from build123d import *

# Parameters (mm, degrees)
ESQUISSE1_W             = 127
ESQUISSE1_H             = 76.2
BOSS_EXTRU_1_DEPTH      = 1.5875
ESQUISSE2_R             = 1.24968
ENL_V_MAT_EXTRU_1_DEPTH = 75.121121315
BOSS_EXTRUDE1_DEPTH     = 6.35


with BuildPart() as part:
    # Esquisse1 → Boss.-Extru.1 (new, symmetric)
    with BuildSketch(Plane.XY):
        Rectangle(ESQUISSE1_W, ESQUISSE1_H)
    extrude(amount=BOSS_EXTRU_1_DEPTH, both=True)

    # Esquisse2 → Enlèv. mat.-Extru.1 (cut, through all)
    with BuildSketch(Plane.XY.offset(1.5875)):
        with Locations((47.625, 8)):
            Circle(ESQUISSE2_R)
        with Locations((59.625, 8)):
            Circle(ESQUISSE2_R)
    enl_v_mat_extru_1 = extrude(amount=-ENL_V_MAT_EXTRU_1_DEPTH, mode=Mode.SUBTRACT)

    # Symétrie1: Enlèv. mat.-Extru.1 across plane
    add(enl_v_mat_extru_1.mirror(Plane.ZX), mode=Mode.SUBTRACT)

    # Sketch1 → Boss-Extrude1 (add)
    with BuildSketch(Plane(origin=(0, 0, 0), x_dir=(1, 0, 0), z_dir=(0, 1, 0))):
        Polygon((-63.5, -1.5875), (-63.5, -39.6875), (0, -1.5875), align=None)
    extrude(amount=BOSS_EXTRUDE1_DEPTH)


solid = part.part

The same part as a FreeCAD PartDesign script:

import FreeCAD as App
import Part
import Sketcher
Q = App.Units.Quantity

doc = App.newDocument("Part")
body = doc.addObject("PartDesign::Body", "Body")

# Sketch on XY plane
sketch1 = doc.addObject("Sketcher::SketchObject", "Sketch")
body.addObject(sketch1)
sketch1.AttachmentSupport = (doc.XY_Plane, [""])
sketch1.MapMode = "FlatFace"
sketch1.addGeometry([
    Part.LineSegment(App.Vector(-63.5, 38.1, 0), App.Vector(-63.5, -38.1, 0)),
    Part.LineSegment(App.Vector(-63.5, -38.1, 0), App.Vector(63.5, -38.1, 0)),
    Part.LineSegment(App.Vector(63.5, -38.1, 0), App.Vector(63.5, 38.1, 0)),
    Part.LineSegment(App.Vector(63.5, 38.1, 0), App.Vector(-63.5, 38.1, 0)),
], False)
sketch1.addConstraint([
    Sketcher.Constraint("Coincident", 0, 2, 1, 1),
    Sketcher.Constraint("Coincident", 1, 2, 2, 1),
    Sketcher.Constraint("Coincident", 2, 2, 3, 1),
    Sketcher.Constraint("Coincident", 3, 2, 0, 1),
    Sketcher.Constraint("Vertical", 0),
    Sketcher.Constraint("Horizontal", 1),
    Sketcher.Constraint("Vertical", 2),
    Sketcher.Constraint("Horizontal", 3),
    Sketcher.Constraint("Symmetric", 0, 2, 2, 2, -1, 1),
    Sketcher.Constraint("DistanceX", 1, 1, 1, 2, Q("5 in")),
    Sketcher.Constraint("DistanceY", 0, 2, 0, 1, Q("3 in")),
])
pad1 = doc.addObject("PartDesign::Pad", "Pad")
body.addObject(pad1)
pad1.Profile = sketch1
pad1.Length = Q("0.125 in")
pad1.Midplane = True

# Sketch on XY plane
sketch2 = doc.addObject("Sketcher::SketchObject", "Sketch001")
body.addObject(sketch2)
sketch2.AttachmentSupport = (doc.XY_Plane, [""])
sketch2.MapMode = "FlatFace"
sketch2.AttachmentOffset = App.Placement(App.Vector(0, 0, 0.0625 * 25.4), App.Rotation())
sketch2.addGeometry([
    Part.Circle(App.Vector(47.625, 8, 0), App.Vector(0, 0, 1), 1.24968),
    Part.Circle(App.Vector(59.625, 8, 0), App.Vector(0, 0, 1), 1.24968),
], False)
sketch2.addConstraint([
    Sketcher.Constraint("Equal", 0, 1),
    Sketcher.Constraint("Horizontal", 0, 3, 1, 3),
    Sketcher.Constraint("Diameter", 0, Q("0.0984 in")),
    Sketcher.Constraint("DistanceX", -1, 1, 0, 3, Q("1.875 in")),
    Sketcher.Constraint("DistanceY", -1, 1, 0, 3, Q("8 mm")),
    Sketcher.Constraint("DistanceX", -1, 1, 1, 3, Q("59.625 mm")),
])
pocket1 = doc.addObject("PartDesign::Pocket", "Pocket")
body.addObject(pocket1)
pocket1.Profile = sketch2
pocket1.Type = "ThroughAll"
doc.recompute()

mirrored = doc.addObject("PartDesign::Mirrored", "Mirrored")
body.addObject(mirrored)
mirrored.Originals = [pocket1]
mirrored.MirrorPlane = (doc.XZ_Plane, [""])
body.Tip = mirrored

# Sketch on XZ plane
sketch3 = doc.addObject("Sketcher::SketchObject", "Sketch002")
body.addObject(sketch3)
sketch3.AttachmentSupport = (doc.XZ_Plane, [""])
sketch3.MapMode = "FlatFace"
sketch3.addGeometry([
    Part.LineSegment(App.Vector(-63.5, 1.5875, 0), App.Vector(-63.5, 39.6875, 0)),
    Part.LineSegment(App.Vector(-63.5, 39.6875, 0), App.Vector(0, 1.5875, 0)),
    Part.LineSegment(App.Vector(0, 1.5875, 0), App.Vector(-63.5, 1.5875, 0)),
], False)
sketch3.addConstraint([
    Sketcher.Constraint("Coincident", 0, 2, 1, 1),
    Sketcher.Constraint("Coincident", 1, 2, 2, 1),
    Sketcher.Constraint("Coincident", 2, 2, 0, 1),
    Sketcher.Constraint("Vertical", 0),
    Sketcher.Constraint("Horizontal", 2),
    Sketcher.Constraint("PointOnObject", 1, 2, -2),
    Sketcher.Constraint("DistanceX", 2, 2, 2, 1, Q("2.5 in")),
    Sketcher.Constraint("DistanceY", 0, 1, 0, 2, Q("1.5 in")),
    Sketcher.Constraint("DistanceY", -1, 1, 0, 2, Q("1.5625 in")),
])
pad2 = doc.addObject("PartDesign::Pad", "Pad001")
body.addObject(pad2)
pad2.Profile = sketch3
pad2.Length = Q("0.25 in")
pad2.Reversed = True

doc.recompute()
